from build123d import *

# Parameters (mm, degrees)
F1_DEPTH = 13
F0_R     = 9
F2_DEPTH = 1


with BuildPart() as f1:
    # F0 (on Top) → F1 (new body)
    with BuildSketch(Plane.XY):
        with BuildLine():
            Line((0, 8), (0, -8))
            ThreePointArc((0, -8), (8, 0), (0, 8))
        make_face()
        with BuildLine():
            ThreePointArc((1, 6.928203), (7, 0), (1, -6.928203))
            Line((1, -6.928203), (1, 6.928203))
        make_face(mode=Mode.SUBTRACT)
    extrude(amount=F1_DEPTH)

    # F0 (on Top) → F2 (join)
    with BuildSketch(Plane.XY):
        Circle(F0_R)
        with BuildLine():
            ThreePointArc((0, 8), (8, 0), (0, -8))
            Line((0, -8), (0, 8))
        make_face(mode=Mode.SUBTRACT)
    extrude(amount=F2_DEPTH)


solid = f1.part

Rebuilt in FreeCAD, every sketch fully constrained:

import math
import FreeCAD as App
import Part
import Sketcher

V = App.Vector
Q = App.Units.Quantity

doc = App.newDocument("Part")
body = doc.addObject("PartDesign::Body", "Body")

sketch1 = body.newObject("Sketcher::SketchObject", "Sketch")
sketch1.AttachmentSupport = (doc.getObject("XY_Plane"), [""])
sketch1.MapMode = "FlatFace"
sketch1.addGeometry([
    Part.LineSegment(V(0, 8, 0), V(0, -8, 0)),
    Part.ArcOfCircle(Part.Circle(V(0, 0, 0), V(0, 0, 1), 8), math.radians(-90), math.radians(90)),
    Part.LineSegment(V(1, -7, 0), V(1, 7, 0)),
    Part.ArcOfCircle(Part.Circle(V(0, 0, 0), V(0, 0, 1), 7), math.radians(-82), math.radians(82)),
], False)
sketch1.addConstraint([
    Sketcher.Constraint("Coincident", 0, 1, 1, 2),
    Sketcher.Constraint("Coincident", 1, 1, 0, 2),
    Sketcher.Constraint("Coincident", 2, 1, 3, 1),
    Sketcher.Constraint("Coincident", 3, 2, 2, 2),
    Sketcher.Constraint("Vertical", 0),
    Sketcher.Constraint("Vertical", 2),
    Sketcher.Constraint("Coincident", 1, 3, -1, 1),
    Sketcher.Constraint("Coincident", 3, 3, -1, 1),
    Sketcher.Constraint("PointOnObject", 0, 1, -2),
    Sketcher.Constraint("Radius", 1, Q("8 mm")),
    Sketcher.Constraint("Radius", 3, Q("7 mm")),
    Sketcher.Constraint("DistanceX", -1, 1, 2, 1, Q("1 mm")),
])
pad1 = body.newObject("PartDesign::Pad", "Pad")
pad1.Profile = sketch1
pad1.Length = 13

sketch2 = body.newObject("Sketcher::SketchObject", "Sketch001")
sketch2.AttachmentSupport = (doc.getObject("XY_Plane"), [""])
sketch2.MapMode = "FlatFace"
sketch2.addGeometry([
    Part.Circle(V(0, 0, 0), V(0, 0, 1), 9),
    Part.LineSegment(V(0, -8, 0), V(0, 8, 0)),
    Part.ArcOfCircle(Part.Circle(V(0, 0, 0), V(0, 0, 1), 8), math.radians(-90), math.radians(90)),
], False)
sketch2.addConstraint([
    Sketcher.Constraint("Coincident", 1, 1, 2, 1),
    Sketcher.Constraint("Coincident", 2, 2, 1, 2),
    Sketcher.Constraint("Vertical", 1),
    Sketcher.Constraint("Coincident", 0, 3, -1, 1),
    Sketcher.Constraint("Coincident", 2, 3, -1, 1),
    Sketcher.Constraint("PointOnObject", 1, 1, -2),
    Sketcher.Constraint("Diameter", 0, Q("18 mm")),
    Sketcher.Constraint("Radius", 2, Q("8 mm")),
])
pad2 = body.newObject("PartDesign::Pad", "Pad001")
pad2.Profile = sketch2
pad2.Length = 1

doc.recompute()
